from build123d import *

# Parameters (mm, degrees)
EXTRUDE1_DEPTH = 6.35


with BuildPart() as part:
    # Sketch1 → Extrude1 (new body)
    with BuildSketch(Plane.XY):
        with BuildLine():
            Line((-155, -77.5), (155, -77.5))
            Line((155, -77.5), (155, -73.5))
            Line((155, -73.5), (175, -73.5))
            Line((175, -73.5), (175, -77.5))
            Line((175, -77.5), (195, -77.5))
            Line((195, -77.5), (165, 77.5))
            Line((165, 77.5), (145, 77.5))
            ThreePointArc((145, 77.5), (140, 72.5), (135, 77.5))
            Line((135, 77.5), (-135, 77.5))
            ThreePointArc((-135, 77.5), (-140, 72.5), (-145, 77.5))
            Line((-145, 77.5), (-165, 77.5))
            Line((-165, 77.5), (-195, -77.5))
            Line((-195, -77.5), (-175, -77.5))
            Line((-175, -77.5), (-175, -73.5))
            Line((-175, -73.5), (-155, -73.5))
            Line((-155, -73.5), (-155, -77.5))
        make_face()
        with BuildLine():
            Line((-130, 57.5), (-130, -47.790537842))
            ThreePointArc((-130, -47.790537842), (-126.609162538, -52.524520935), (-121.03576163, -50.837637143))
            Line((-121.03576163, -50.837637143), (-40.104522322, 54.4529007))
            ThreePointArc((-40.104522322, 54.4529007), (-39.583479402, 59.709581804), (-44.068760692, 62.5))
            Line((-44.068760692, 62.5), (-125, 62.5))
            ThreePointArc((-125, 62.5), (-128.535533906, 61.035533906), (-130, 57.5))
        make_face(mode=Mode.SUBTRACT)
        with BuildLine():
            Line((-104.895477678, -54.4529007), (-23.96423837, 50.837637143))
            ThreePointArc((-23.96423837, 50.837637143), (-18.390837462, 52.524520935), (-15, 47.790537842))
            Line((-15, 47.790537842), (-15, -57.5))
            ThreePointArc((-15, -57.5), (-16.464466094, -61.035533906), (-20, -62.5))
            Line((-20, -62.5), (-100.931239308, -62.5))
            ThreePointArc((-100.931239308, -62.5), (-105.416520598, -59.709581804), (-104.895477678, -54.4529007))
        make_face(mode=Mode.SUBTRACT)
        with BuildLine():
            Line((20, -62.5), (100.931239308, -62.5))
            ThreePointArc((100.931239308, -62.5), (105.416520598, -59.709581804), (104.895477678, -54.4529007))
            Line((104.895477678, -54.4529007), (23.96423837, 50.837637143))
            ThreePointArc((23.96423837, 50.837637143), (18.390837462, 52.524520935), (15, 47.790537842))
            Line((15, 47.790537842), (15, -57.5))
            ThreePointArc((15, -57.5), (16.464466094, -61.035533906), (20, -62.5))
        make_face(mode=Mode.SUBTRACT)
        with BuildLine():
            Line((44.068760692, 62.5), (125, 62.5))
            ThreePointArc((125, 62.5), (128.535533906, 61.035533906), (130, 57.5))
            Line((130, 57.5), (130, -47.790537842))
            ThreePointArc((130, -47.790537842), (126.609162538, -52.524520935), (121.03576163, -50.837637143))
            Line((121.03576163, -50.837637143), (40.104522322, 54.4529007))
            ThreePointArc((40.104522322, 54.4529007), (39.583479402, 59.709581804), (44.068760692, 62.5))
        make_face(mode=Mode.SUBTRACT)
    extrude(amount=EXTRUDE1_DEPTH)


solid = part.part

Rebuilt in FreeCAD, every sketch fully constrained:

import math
import FreeCAD as App
import Part
import Sketcher

doc = App.newDocument("Part")
params = doc.addObject("Spreadsheet::Sheet", "Params")
for row, (alias, value) in enumerate([
    ("sketch1_radius", "5 mm"),
    ("sketch1_radius2", "5 mm"),
    ("sketch1_radius3", "5 mm"),
    ("sketch1_radius4", "5 mm"),
    ("sketch1_radius5", "5 mm"),
    ("pad1_length", "6.35 mm"),
], start=1):
    params.set(f"A{row}", alias)
    params.set(f"B{row}", "=" + value)
    params.setAlias(f"B{row}", alias)

body = doc.addObject("PartDesign::Body", "Body")

sketch1 = body.newObject("Sketcher::SketchObject", "Sketch")
sketch1.AttachmentSupport = (doc.getObject("XY_Plane"), [""])
sketch1.MapMode = "FlatFace"
sketch1.addGeometry(Part.LineSegment(App.Vector(-155, -77.5, 0), App.Vector(155, -77.5, 0)), False)
sketch1.addGeometry(Part.LineSegment(App.Vector(155, -77.5, 0), App.Vector(155, -73.5, 0)), False)
sketch1.addGeometry(Part.LineSegment(App.Vector(155, -73.5, 0), App.Vector(175, -73.5, 0)), False)
sketch1.addGeometry(Part.LineSegment(App.Vector(175, -73.5, 0), App.Vector(175, -77.5, 0)), False)
sketch1.addGeometry(Part.LineSegment(App.Vector(175, -77.5, 0), App.Vector(195, -77.5, 0)), False)
sketch1.addGeometry(Part.LineSegment(App.Vector(195, -77.5, 0), App.Vector(165, 77.5, 0)), False)
sketch1.addGeometry(Part.LineSegment(App.Vector(165, 77.5, 0), App.Vector(145, 77.5, 0)), False)
sketch1.addGeometry(Part.ArcOfCircle(Part.Circle(App.Vector(140, 77.5, 0), App.Vector(0, 0, 1), 5), math.radians(180), math.radians(360)), False)
sketch1.addGeometry(Part.LineSegment(App.Vector(135, 77.5, 0), App.Vector(-135, 77.5, 0)), False)
sketch1.addGeometry(Part.ArcOfCircle(Part.Circle(App.Vector(-140, 77.5, 0), App.Vector(0, 0, 1), 5), math.radians(180), math.radians(360)), False)
sketch1.addGeometry(Part.LineSegment(App.Vector(-145, 77.5, 0), App.Vector(-165, 77.5, 0)), False)
sketch1.addGeometry(Part.LineSegment(App.Vector(-165, 77.5, 0), App.Vector(-195, -77.5, 0)), False)
sketch1.addGeometry(Part.LineSegment(App.Vector(-195, -77.5, 0), App.Vector(-175, -77.5, 0)), False)
sketch1.addGeometry(Part.LineSegment(App.Vector(-175, -77.5, 0), App.Vector(-175, -73.5, 0)), False)
sketch1.addGeometry(Part.LineSegment(App.Vector(-175, -73.5, 0), App.Vector(-155, -73.5, 0)), False)
sketch1.addGeometry(Part.LineSegment(App.Vector(-155, -73.5, 0), App.Vector(-155, -77.5, 0)), False)
sketch1.addGeometry(Part.ArcOfCircle(Part.Circle(App.Vector(-100.931239, -57.5, 0), App.Vector(0, 0, 1), 5), math.radians(142.452433), math.radians(270)), False)
sketch1.addGeometry(Part.LineSegment(App.Vector(-104.895478, -54.452901, 0), App.Vector(-23.964238, 50.837637, 0)), False)
sketch1.addGeometry(Part.ArcOfCircle(Part.Circle(App.Vector(-20, 47.790538, 0), App.Vector(0, 0, 1), 5), math.radians(0), math.radians(142.452433)), False)
sketch1.addGeometry(Part.LineSegment(App.Vector(-15, 47.790538, 0), App.Vector(-15, -57.5, 0)), False)
sketch1.addGeometry(Part.ArcOfCircle(Part.Circle(App.Vector(-20, -57.5, 0), App.Vector(0, 0, 1), 5), math.radians(-90), math.radians(0)), False)
sketch1.addGeometry(Part.LineSegment(App.Vector(-20, -62.5, 0), App.Vector(-100.931239, -62.5, 0)), False)
sketch1.addGeometry(Part.LineSegment(App.Vector(100.931239, -62.5, 0), App.Vector(20, -62.5, 0)), False)
sketch1.addGeometry(Part.ArcOfCircle(Part.Circle(App.Vector(20, -57.5, 0), App.Vector(0, 0, 1), 5), math.radians(180), math.radians(270)), False)
sketch1.addGeometry(Part.LineSegment(App.Vector(15, -57.5, 0), App.Vector(15, 47.790538, 0)), False)
sketch1.addGeometry(Part.ArcOfCircle(Part.Circle(App.Vector(20, 47.790538, 0), App.Vector(0, 0, 1), 5), math.radians(37.547567), math.radians(180)), False)
sketch1.addGeometry(Part.LineSegment(App.Vector(23.964238, 50.837637, 0), App.Vector(104.895478, -54.452901, 0)), False)
sketch1.addGeometry(Part.ArcOfCircle(Part.Circle(App.Vector(100.931239, -57.5, 0), App.Vector(0, 0, 1), 5), math.radians(-90), math.radians(37.547567)), False)
sketch1.addGeometry(Part.LineSegment(App.Vector(-130, -47.790538, 0), App.Vector(-130, 57.5, 0)), False)
sketch1.addGeometry(Part.ArcOfCircle(Part.Circle(App.Vector(-125, 57.5, 0), App.Vector(0, 0, 1), 5), math.radians(90), math.radians(180)), False)
sketch1.addGeometry(Part.LineSegment(App.Vector(-125, 62.5, 0), App.Vector(-44.068761, 62.5, 0)), False)
sketch1.addGeometry(Part.ArcOfCircle(Part.Circle(App.Vector(-44.068761, 57.5, 0), App.Vector(0, 0, 1), 5), math.radians(-37.547567), math.radians(90)), False)
sketch1.addGeometry(Part.LineSegment(App.Vector(-40.104522, 54.452901, 0), App.Vector(-121.035762, -50.837637, 0)), False)
sketch1.addGeometry(Part.ArcOfCircle(Part.Circle(App.Vector(-125, -47.790538, 0), App.Vector(0, 0, 1), 5), math.radians(180), math.radians(322.452433)), False)
sketch1.addGeometry(Part.ArcOfCircle(Part.Circle(App.Vector(44.068761, 57.5, 0), App.Vector(0, 0, 1), 5), math.radians(90), math.radians(217.547567)), False)
sketch1.addGeometry(Part.LineSegment(App.Vector(44.068761, 62.5, 0), App.Vector(125, 62.5, 0)), False)
sketch1.addGeometry(Part.ArcOfCircle(Part.Circle(App.Vector(125, 57.5, 0), App.Vector(0, 0, 1), 5), math.radians(0), math.radians(90)), False)
sketch1.addGeometry(Part.LineSegment(App.Vector(130, 57.5, 0), App.Vector(130, -47.790538, 0)), False)
sketch1.addGeometry(Part.ArcOfCircle(Part.Circle(App.Vector(125, -47.790538, 0), App.Vector(0, 0, 1), 5), math.radians(-142.452433), math.radians(0)), False)
sketch1.addGeometry(Part.LineSegment(App.Vector(121.035762, -50.837637, 0), App.Vector(40.104522, 54.452901, 0)), False)
sketch1.addConstraint(Sketcher.Constraint("Coincident", 0, 2, 1, 1))
sketch1.addConstraint(Sketcher.Constraint("Coincident", 1, 2, 2, 1))
sketch1.addConstraint(Sketcher.Constraint("Coincident", 2, 2, 3, 1))
sketch1.addConstraint(Sketcher.Constraint("Coincident", 3, 2, 4, 1))
sketch1.addConstraint(Sketcher.Constraint("Coincident", 4, 2, 5, 1))
sketch1.addConstraint(Sketcher.Constraint("Coincident", 5, 2, 6, 1))
sketch1.addConstraint(Sketcher.Constraint("Coincident", 6, 2, 7, 2))
sketch1.addConstraint(Sketcher.Constraint("Coincident", 7, 1, 8, 1))
sketch1.addConstraint(Sketcher.Constraint("Coincident", 8, 2, 9, 2))
sketch1.addConstraint(Sketcher.Constraint("Coincident", 9, 1, 10, 1))
sketch1.addConstraint(Sketcher.Constraint("Coincident", 10, 2, 11, 1))
sketch1.addConstraint(Sketcher.Constraint("Coincident", 11, 2, 12, 1))
sketch1.addConstraint(Sketcher.Constraint("Coincident", 12, 2, 13, 1))
sketch1.addConstraint(Sketcher.Constraint("Coincident", 13, 2, 14, 1))
sketch1.addConstraint(Sketcher.Constraint("Coincident", 14, 2, 15, 1))
sketch1.addConstraint(Sketcher.Constraint("Coincident", 15, 2, 0, 1))
sketch1.addConstraint(Sketcher.Constraint("Coincident", 16, 1, 17, 1))
sketch1.addConstraint(Sketcher.Constraint("Coincident", 17, 2, 18, 2))
sketch1.addConstraint(Sketcher.Constraint("Coincident", 18, 1, 19, 1))
sketch1.addConstraint(Sketcher.Constraint("Coincident", 19, 2, 20, 2))
sketch1.addConstraint(Sketcher.Constraint("Coincident", 20, 1, 21, 1))
sketch1.addConstraint(Sketcher.Constraint("Coincident", 21, 2, 16, 2))
sketch1.addConstraint(Sketcher.Constraint("Coincident", 22, 2, 23, 2))
sketch1.addConstraint(Sketcher.Constraint("Coincident", 23, 1, 24, 1))
sketch1.addConstraint(Sketcher.Constraint("Coincident", 24, 2, 25, 2))
sketch1.addConstraint(Sketcher.Constraint("Coincident", 25, 1, 26, 1))
sketch1.addConstraint(Sketcher.Constraint("Coincident", 26, 2, 27, 2))
sketch1.addConstraint(Sketcher.Constraint("Coincident", 27, 1, 22, 1))
sketch1.addConstraint(Sketcher.Constraint("Coincident", 28, 2, 29, 2))
sketch1.addConstraint(Sketcher.Constraint("Coincident", 29, 1, 30, 1))
sketch1.addConstraint(Sketcher.Constraint("Coincident", 30, 2, 31, 2))
sketch1.addConstraint(Sketcher.Constraint("Coincident", 31, 1, 32, 1))
sketch1.addConstraint(Sketcher.Constraint("Coincident", 32, 2, 33, 2))
sketch1.addConstraint(Sketcher.Constraint("Coincident", 33, 1, 28, 1))
sketch1.addConstraint(Sketcher.Constraint("Coincident", 34, 1, 35, 1))
sketch1.addConstraint(Sketcher.Constraint("Coincident", 35, 2, 36, 2))
sketch1.addConstraint(Sketcher.Constraint("Coincident", 36, 1, 37, 1))
sketch1.addConstraint(Sketcher.Constraint("Coincident", 37, 2, 38, 2))
sketch1.addConstraint(Sketcher.Constraint("Coincident", 38, 1, 39, 1))
sketch1.addConstraint(Sketcher.Constraint("Coincident", 39, 2, 34, 2))
sketch1.addConstraint(Sketcher.Constraint("Horizontal", 0))
sketch1.addConstraint(Sketcher.Constraint("Vertical", 1))
sketch1.addConstraint(Sketcher.Constraint("Horizontal", 2))
sketch1.addConstraint(Sketcher.Constraint("Vertical", 3))
sketch1.addConstraint(Sketcher.Constraint("Horizontal", 4))
sketch1.addConstraint(Sketcher.Constraint("Horizontal", 6))
sketch1.addConstraint(Sketcher.Constraint("Horizontal", 8))
sketch1.addConstraint(Sketcher.Constraint("Horizontal", 10))
sketch1.addConstraint(Sketcher.Constraint("Horizontal", 12))
sketch1.addConstraint(Sketcher.Constraint("Vertical", 13))
sketch1.addConstraint(Sketcher.Constraint("Horizontal", 14))
sketch1.addConstraint(Sketcher.Constraint("Vertical", 15))
sketch1.addConstraint(Sketcher.Constraint("Vertical", 19))
sketch1.addConstraint(Sketcher.Constraint("Horizontal", 21))
sketch1.addConstraint(Sketcher.Constraint("Horizontal", 22))
sketch1.addConstraint(Sketcher.Constraint("Vertical", 24))
sketch1.addConstraint(Sketcher.Constraint("Vertical", 28))
sketch1.addConstraint(Sketcher.Constraint("Horizontal", 30))
sketch1.addConstraint(Sketcher.Constraint("Horizontal", 35))
sketch1.addConstraint(Sketcher.Constraint("Vertical", 37))
sketch1.addConstraint(Sketcher.Constraint("Radius", 7, 5.0))
sketch1.addConstraint(Sketcher.Constraint("Radius", 9, 5.0))
sketch1.addConstraint(Sketcher.Constraint("Radius", 16, 5.0))
sketch1.addConstraint(Sketcher.Constraint("Radius", 18, 5.0))
sketch1.addConstraint(Sketcher.Constraint("Radius", 20, 5.0))
sketch1.addConstraint(Sketcher.Constraint("Radius", 23, 5.0))
sketch1.addConstraint(Sketcher.Constraint("Radius", 25, 5.0))
sketch1.addConstraint(Sketcher.Constraint("Radius", 27, 5.0))
sketch1.addConstraint(Sketcher.Constraint("Radius", 29, 5.0))
sketch1.addConstraint(Sketcher.Constraint("Radius", 31, 5.0))
sketch1.addConstraint(Sketcher.Constraint("Radius", 33, 5.0))
sketch1.addConstraint(Sketcher.Constraint("Radius", 34, 5.0))
sketch1.addConstraint(Sketcher.Constraint("Radius", 36, 5.0))
sketch1.addConstraint(Sketcher.Constraint("Radius", 38, 5.0))
sketch1.addConstraint(Sketcher.Constraint("DistanceX", 0, 1, 0, 2, 310.0))
sketch1.addConstraint(Sketcher.Constraint("DistanceX", 2, 1, 2, 2, 20.0))
sketch1.addConstraint(Sketcher.Constraint("DistanceX", 4, 1, 4, 2, 20.0))
sketch1.addConstraint(Sketcher.Constraint("DistanceX", 6, 2, 6, 1, 20.0))
sketch1.addConstraint(Sketcher.Constraint("DistanceX", 8, 2, 8, 1, 270.0))
sketch1.addConstraint(Sketcher.Constraint("DistanceX", 10, 2, 10, 1, 20.0))
sketch1.addConstraint(Sketcher.Constraint("DistanceX", 12, 1, 12, 2, 20.0))
sketch1.addConstraint(Sketcher.Constraint("DistanceX", 14, 1, 14, 2, 20.0))
sketch1.addConstraint(Sketcher.Constraint("DistanceY", 1, 1, 1, 2, 4.0))
sketch1.addConstraint(Sketcher.Constraint("DistanceY", 3, 2, 3, 1, 4.0))
sketch1.addConstraint(Sketcher.Constraint("DistanceY", 13, 1, 13, 2, 4.0))
sketch1.addConstraint(Sketcher.Constraint("DistanceY", 15, 2, 15, 1, 4.0))
sketch1.addConstraint(Sketcher.Constraint("DistanceX", -1, 1, 7, 3, 140.0))
sketch1.addConstraint(Sketcher.Constraint("DistanceX", 18, 3, -1, 1, 20.0))
sketch1.addConstraint(Sketcher.Constraint("DistanceX", -1, 1, 23, 3, 20.0))
sketch1.addConstraint(Sketcher.Constraint("DistanceX", 29, 3, -1, 1, 125.0))
sketch1.addConstraint(Sketcher.Constraint("DistanceX", -1, 1, 36, 3, 125.0))
sketch1.addConstraint(Sketcher.Constraint("DistanceX", -1, 1, 0, 2, 155.0))
sketch1.addConstraint(Sketcher.Constraint("DistanceX", 20, 1, -1, 1, 20.0))
sketch1.addConstraint(Sketcher.Constraint("DistanceX", -1, 1, 22, 2, 20.0))
sketch1.addConstraint(Sketcher.Constraint("DistanceX", 29, 1, -1, 1, 125.0))
sketch1.addConstraint(Sketcher.Constraint("DistanceX", -1, 1, 35, 2, 125.0))
sketch1.addConstraint(Sketcher.Constraint("DistanceY", 16, 3, 9, 3, 135.0))
sketch1.addConstraint(Sketcher.Constraint("DistanceY", 16, 3, 7, 3, 135.0))
sketch1.addConstraint(Sketcher.Constraint("DistanceY", 23, 3, 7, 3, 135.0))
sketch1.addConstraint(Sketcher.Constraint("DistanceY", 29, 3, 9, 3, 20.0))
sketch1.addConstraint(Sketcher.Constraint("DistanceY", 34, 3, 7, 3, 20.0))
sketch1.addConstraint(Sketcher.Constraint("DistanceY", 0, 2, 27, 3, 20.0))
sketch1.addConstraint(Sketcher.Constraint("DistanceY", 36, 3, 5, 2, 20.0))
sketch1.addConstraint(Sketcher.Constraint("DistanceY", 36, 3, 7, 1, 20.0))
sketch1.addConstraint(Sketcher.Constraint("DistanceY", 29, 3, 9, 1, 20.0))
sketch1.addConstraint(Sketcher.Constraint("DistanceY", 20, 1, 19, 2, 5.0))
sketch1.addConstraint(Sketcher.Constraint("DistanceY", 22, 2, 23, 1, 5.0))
sketch1.addConstraint(Sketcher.Constraint("DistanceY", 28, 2, 8, 2, 20.0))
sketch1.addConstraint(Sketcher.Constraint("DistanceY", 36, 1, 35, 2, 5.0))
sketch1.addConstraint(Sketcher.Constraint("DistanceY", -1, 1, 7, 3, 77.5))
sketch1.addConstraint(Sketcher.Constraint("DistanceX", 17, 2, 34, 3, 68.032999))
sketch1.addConstraint(Sketcher.Constraint("DistanceX", 21, 2, 21, 1, 80.931239))
sketch1.addConstraint(Sketcher.Constraint("DistanceX", 22, 2, 22, 1, 80.931239))
sketch1.addConstraint(Sketcher.Constraint("DistanceX", 30, 1, 30, 2, 80.931239))
sketch1.addConstraint(Sketcher.Constraint("DistanceX", 35, 1, 35, 2, 80.931239))
sketch1.addConstraint(Sketcher.Constraint("DistanceY", 16, 1, -1, 1, 54.452901))
sketch1.addConstraint(Sketcher.Constraint("DistanceY", 26, 2, -1, 1, 54.452901))
sketch1.addConstraint(Sketcher.Constraint("DistanceY", -1, 1, 31, 1, 54.452901))
sketch1.addConstraint(Sketcher.Constraint("DistanceY", -1, 1, 39, 2, 54.452901))
sketch1.addConstraint(Sketcher.Constraint("DistanceY", 18, 3, 17, 2, 3.047099))
sketch1.addConstraint(Sketcher.Constraint("DistanceY", 25, 3, 17, 2, 3.047099))
sketch1.addConstraint(Sketcher.Constraint("DistanceY", 18, 1, 17, 2, 3.047099))
sketch1.addConstraint(Sketcher.Constraint("DistanceY", 24, 2, 17, 2, 3.047099))
sketch1.addConstraint(Sketcher.Constraint("DistanceY", 25, 3, 25, 1, 3.047099))
sketch1.addConstraint(Sketcher.Constraint("DistanceY", 32, 2, 33, 3, 3.047099))
sketch1.addConstraint(Sketcher.Constraint("DistanceY", 32, 2, 33, 1, 3.047099))
sketch1.addConstraint(Sketcher.Constraint("DistanceY", 38, 1, 38, 3, 3.047099))
sketch1.addConstraint(Sketcher.Constraint("DistanceY", 38, 1, 37, 2, 3.047099))
sketch1.addConstraint(Sketcher.Constraint("DistanceY", 19, 2, 19, 1, 105.290538))
sketch1.addConstraint(Sketcher.Constraint("DistanceY", 28, 1, 28, 2, 105.290538))
sketch1.addConstraint(Sketcher.Constraint("DistanceY", 37, 2, 37, 1, 105.290538))
sketch1.addConstraint(Sketcher.Constraint("DistanceX", 16, 3, -1, 1, 100.931239))
sketch1.addConstraint(Sketcher.Constraint("DistanceX", -1, 1, 27, 3, 100.931239))
sketch1.addConstraint(Sketcher.Constraint("DistanceX", 31, 3, -1, 1, 44.068761))
sketch1.setExpression("Constraints[60]", "Params.sketch1_radius")
sketch1.setExpression("Constraints[61]", "Params.sketch1_radius2")
sketch1.setExpression("Constraints[62]", "Params.sketch1_radius3")
sketch1.setExpression("Constraints[63]", "Params.sketch1_radius4")
sketch1.setExpression("Constraints[64]", "Params.sketch1_radius5")
pad1 = body.newObject("PartDesign::Pad", "Pad")
pad1.Profile = sketch1
pad1.setExpression("Length", "Params.pad1_length")

doc.recompute()
